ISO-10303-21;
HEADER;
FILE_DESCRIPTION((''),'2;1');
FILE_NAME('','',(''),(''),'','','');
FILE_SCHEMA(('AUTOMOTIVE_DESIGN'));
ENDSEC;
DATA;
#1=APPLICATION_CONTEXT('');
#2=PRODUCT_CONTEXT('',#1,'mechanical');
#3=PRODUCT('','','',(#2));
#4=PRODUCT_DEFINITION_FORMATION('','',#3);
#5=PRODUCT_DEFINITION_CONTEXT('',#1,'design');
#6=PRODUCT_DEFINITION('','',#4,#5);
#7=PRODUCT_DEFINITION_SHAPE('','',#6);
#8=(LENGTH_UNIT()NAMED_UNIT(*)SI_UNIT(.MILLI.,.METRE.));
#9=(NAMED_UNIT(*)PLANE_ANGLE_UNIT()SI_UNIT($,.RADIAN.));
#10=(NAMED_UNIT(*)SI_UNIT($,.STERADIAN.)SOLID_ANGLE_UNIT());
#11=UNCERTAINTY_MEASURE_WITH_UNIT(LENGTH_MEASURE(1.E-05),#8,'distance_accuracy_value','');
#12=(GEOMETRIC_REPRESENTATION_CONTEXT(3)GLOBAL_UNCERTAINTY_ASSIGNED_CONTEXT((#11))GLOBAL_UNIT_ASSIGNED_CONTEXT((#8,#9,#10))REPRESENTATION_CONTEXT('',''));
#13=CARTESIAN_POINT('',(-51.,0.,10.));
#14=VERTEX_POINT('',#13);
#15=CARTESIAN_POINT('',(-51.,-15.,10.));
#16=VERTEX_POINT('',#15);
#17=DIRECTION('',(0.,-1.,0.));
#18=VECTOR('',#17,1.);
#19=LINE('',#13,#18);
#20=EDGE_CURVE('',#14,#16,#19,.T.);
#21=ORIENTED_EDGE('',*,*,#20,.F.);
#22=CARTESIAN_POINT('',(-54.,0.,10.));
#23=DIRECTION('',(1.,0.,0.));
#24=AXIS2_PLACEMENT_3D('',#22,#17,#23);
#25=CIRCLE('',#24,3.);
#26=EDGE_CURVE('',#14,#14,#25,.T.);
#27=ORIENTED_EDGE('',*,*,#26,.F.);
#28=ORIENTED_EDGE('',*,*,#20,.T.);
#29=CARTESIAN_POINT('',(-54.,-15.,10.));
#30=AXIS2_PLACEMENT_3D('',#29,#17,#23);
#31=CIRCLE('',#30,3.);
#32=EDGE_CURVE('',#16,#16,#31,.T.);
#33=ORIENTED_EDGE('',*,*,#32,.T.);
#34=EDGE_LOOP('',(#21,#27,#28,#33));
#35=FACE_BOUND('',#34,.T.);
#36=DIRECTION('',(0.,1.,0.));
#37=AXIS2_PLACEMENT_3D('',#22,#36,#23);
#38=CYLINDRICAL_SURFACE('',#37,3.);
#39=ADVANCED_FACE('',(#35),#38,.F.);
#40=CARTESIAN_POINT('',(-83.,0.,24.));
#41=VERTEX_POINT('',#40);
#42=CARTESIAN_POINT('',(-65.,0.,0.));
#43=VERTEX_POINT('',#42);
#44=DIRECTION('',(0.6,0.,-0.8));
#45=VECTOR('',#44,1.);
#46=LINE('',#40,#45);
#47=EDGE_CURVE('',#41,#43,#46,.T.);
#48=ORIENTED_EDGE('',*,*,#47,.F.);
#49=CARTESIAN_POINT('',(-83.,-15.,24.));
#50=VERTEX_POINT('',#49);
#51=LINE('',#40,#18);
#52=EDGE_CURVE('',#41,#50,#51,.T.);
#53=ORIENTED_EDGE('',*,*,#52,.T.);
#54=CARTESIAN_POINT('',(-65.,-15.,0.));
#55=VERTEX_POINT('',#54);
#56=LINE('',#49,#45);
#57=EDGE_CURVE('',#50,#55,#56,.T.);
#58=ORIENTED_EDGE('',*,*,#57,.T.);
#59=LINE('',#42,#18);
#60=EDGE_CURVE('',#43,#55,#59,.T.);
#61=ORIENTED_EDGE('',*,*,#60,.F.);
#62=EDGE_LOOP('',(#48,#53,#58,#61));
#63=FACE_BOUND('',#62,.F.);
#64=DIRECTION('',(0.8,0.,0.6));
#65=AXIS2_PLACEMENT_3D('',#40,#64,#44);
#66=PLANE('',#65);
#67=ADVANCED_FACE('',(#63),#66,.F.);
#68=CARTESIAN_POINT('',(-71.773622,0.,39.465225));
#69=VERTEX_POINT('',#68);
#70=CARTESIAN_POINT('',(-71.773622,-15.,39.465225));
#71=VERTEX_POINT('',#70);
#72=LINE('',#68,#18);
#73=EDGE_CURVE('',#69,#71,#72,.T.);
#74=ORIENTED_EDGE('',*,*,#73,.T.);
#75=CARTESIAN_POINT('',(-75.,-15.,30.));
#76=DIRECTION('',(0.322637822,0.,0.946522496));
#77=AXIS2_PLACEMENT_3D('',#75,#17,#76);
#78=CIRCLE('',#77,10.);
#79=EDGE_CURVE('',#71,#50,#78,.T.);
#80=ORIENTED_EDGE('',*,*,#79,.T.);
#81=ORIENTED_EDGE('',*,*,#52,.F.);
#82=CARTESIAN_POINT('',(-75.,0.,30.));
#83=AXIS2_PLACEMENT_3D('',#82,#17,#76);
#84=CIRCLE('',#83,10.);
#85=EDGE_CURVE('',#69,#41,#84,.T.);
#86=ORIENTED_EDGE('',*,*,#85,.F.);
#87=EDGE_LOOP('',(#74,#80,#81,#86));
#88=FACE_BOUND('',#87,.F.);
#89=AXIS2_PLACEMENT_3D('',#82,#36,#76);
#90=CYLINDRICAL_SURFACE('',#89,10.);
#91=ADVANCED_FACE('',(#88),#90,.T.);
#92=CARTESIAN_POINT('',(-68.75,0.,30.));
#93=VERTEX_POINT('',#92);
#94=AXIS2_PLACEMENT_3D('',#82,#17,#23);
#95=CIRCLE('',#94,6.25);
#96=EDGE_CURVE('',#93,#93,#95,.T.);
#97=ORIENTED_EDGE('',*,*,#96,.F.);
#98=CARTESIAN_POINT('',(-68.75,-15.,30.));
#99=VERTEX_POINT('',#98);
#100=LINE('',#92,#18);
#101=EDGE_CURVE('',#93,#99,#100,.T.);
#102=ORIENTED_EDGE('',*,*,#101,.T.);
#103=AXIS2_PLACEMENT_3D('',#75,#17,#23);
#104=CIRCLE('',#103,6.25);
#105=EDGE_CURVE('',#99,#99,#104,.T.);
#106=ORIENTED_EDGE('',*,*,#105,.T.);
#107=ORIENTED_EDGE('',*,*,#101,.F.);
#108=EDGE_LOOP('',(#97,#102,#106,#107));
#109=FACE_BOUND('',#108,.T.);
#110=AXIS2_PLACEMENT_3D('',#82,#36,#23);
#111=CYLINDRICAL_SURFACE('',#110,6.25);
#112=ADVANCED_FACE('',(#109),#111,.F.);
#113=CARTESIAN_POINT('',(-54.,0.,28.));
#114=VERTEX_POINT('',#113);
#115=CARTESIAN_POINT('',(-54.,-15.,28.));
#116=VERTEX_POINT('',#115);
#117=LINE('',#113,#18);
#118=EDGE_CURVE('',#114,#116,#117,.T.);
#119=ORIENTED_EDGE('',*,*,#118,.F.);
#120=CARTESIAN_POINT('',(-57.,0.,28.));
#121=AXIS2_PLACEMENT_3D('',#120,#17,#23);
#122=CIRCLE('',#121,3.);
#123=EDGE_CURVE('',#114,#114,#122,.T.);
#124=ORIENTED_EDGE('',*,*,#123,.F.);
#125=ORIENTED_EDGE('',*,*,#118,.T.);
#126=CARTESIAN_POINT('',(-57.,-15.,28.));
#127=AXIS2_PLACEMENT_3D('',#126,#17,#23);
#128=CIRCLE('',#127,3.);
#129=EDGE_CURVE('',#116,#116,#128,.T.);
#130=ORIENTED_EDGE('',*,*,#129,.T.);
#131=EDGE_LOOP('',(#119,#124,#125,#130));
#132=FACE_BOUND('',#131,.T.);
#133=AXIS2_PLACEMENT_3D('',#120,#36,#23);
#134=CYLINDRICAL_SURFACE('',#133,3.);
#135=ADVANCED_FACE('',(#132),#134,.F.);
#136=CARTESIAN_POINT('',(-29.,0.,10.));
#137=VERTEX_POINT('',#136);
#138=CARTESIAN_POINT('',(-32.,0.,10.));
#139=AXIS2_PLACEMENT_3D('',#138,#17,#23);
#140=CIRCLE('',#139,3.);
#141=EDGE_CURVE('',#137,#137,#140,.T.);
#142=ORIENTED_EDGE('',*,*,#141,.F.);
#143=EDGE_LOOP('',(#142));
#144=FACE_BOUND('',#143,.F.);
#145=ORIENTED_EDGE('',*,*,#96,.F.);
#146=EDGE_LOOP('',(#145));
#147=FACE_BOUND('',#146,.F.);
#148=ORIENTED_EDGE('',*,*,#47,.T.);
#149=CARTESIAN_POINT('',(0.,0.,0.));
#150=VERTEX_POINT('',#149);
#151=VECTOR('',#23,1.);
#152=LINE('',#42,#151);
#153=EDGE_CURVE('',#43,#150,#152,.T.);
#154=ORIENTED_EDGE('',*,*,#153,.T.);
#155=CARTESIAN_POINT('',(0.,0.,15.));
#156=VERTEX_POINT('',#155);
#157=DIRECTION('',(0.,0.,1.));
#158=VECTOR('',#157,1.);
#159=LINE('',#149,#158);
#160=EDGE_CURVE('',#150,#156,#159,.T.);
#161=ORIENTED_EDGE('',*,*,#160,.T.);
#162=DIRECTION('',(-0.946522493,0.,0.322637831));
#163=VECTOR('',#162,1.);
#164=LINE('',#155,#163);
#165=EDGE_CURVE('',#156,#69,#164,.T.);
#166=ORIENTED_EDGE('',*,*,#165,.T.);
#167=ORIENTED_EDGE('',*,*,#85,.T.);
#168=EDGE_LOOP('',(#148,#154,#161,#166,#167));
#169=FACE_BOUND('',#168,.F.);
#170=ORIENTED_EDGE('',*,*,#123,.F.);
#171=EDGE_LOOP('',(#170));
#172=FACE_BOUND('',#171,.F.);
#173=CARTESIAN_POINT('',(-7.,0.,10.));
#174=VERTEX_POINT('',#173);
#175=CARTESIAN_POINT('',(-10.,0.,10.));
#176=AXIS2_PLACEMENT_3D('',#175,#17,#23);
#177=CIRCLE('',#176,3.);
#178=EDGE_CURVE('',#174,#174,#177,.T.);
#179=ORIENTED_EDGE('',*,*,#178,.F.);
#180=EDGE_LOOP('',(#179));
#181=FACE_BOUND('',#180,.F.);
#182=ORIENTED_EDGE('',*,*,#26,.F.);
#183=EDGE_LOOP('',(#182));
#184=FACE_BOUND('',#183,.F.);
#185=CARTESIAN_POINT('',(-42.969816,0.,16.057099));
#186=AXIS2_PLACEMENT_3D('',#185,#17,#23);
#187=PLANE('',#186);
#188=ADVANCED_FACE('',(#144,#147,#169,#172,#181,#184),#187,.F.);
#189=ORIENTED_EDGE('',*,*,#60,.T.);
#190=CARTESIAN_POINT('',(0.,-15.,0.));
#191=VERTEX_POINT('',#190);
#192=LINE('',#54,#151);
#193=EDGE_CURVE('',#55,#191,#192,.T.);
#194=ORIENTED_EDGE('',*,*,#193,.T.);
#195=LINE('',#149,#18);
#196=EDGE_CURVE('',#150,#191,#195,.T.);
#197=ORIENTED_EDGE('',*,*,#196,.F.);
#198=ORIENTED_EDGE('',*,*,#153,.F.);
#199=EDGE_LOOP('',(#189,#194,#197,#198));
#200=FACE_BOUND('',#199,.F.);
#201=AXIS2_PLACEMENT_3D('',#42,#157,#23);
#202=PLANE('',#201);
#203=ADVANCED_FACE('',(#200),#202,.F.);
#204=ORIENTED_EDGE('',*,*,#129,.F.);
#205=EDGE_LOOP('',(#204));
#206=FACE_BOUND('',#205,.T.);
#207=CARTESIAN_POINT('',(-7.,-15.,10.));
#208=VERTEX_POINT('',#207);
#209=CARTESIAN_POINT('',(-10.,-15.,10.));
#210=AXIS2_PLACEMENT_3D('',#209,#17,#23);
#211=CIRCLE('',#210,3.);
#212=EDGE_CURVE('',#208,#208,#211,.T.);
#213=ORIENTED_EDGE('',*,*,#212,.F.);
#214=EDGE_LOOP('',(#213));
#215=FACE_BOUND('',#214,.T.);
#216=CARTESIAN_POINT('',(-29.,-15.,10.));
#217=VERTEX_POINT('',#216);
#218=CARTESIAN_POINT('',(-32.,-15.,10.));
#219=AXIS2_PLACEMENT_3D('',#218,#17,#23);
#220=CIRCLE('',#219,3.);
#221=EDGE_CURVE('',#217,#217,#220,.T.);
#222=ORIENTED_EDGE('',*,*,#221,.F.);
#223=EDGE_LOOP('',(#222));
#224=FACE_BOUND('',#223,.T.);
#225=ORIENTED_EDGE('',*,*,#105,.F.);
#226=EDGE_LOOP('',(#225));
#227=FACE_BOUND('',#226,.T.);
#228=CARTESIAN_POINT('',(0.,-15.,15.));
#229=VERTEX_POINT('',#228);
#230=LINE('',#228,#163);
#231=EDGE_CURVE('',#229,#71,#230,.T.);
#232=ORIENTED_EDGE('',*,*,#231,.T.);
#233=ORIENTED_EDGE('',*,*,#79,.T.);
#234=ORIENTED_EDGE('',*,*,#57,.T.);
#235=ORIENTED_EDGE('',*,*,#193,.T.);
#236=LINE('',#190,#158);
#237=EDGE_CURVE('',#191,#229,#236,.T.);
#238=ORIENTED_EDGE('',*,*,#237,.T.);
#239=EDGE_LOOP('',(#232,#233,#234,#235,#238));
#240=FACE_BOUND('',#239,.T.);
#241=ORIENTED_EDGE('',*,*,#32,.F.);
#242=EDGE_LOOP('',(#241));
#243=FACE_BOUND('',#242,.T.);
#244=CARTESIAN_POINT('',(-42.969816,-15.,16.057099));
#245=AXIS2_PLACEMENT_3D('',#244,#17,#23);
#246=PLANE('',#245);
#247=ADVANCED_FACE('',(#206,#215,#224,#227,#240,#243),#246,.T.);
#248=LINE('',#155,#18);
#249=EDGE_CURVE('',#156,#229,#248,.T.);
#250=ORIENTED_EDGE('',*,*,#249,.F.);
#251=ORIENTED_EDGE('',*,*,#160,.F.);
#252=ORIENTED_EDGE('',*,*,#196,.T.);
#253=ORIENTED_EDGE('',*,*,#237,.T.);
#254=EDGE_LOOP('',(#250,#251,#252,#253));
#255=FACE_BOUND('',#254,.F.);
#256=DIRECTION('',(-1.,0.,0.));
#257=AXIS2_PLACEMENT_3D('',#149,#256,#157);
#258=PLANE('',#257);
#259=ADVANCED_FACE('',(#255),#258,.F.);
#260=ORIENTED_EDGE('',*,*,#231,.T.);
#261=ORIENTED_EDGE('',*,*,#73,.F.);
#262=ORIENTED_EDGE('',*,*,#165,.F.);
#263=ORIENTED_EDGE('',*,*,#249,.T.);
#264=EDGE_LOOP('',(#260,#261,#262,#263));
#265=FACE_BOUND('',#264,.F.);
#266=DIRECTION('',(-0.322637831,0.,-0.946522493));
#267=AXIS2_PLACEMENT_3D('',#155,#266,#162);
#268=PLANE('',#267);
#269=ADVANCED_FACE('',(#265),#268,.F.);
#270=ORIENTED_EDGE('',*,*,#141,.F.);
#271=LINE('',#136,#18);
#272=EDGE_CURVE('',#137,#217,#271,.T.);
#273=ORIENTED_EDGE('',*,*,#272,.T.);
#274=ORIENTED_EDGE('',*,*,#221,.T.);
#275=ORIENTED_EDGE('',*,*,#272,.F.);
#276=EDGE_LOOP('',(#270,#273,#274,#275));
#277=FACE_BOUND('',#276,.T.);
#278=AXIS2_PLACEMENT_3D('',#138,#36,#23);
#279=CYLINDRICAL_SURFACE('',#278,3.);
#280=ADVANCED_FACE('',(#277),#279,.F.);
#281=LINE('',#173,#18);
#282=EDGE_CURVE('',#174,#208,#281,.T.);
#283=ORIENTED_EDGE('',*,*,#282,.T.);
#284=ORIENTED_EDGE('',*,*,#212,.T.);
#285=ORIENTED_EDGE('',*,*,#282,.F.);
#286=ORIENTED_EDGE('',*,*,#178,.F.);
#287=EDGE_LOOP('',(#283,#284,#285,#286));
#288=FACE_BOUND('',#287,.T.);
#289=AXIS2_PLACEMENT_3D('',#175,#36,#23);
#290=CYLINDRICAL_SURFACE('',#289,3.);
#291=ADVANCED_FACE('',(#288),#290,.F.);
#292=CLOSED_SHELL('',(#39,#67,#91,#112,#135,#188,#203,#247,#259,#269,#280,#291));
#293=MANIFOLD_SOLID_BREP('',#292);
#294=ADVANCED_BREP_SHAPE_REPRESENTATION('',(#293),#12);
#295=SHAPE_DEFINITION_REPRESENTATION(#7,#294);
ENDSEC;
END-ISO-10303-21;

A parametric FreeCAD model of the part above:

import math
import FreeCAD as App
import Part
import Sketcher
from FreeCAD import Vector

doc = App.newDocument("Part")
body = doc.addObject("PartDesign::Body", "Body")

# Sketch on XZ plane
sketch1 = body.newObject("Sketcher::SketchObject", "Sketch")
sketch1.AttachmentSupport = (doc.getObject("XZ_Plane"), [""])
sketch1.MapMode = "FlatFace"
sketch1.addGeometry(Part.LineSegment(Vector(-65, 0, 0), Vector(0, 0, 0)), False)
sketch1.addGeometry(Part.LineSegment(Vector(0, 0, 0), Vector(0, 15, 0)), False)
sketch1.addGeometry(Part.LineSegment(Vector(0, 15, 0), Vector(-71.8, 39.5, 0)), False)
sketch1.addGeometry(Part.ArcOfCircle(Part.Circle(Vector(-75, 30, 0), Vector(0, 0, 1), 10), math.radians(71), math.radians(217)), False)
sketch1.addGeometry(Part.LineSegment(Vector(-83, 24, 0), Vector(-65, 0, 0)), False)
sketch1.addGeometry(Part.Circle(Vector(-54, 10, 0), Vector(0, 0, 1), 3), False)
sketch1.addGeometry(Part.Circle(Vector(-32, 10, 0), Vector(0, 0, 1), 3), False)
sketch1.addGeometry(Part.Circle(Vector(-10, 10, 0), Vector(0, 0, 1), 3), False)
sketch1.addGeometry(Part.Circle(Vector(-57, 28, 0), Vector(0, 0, 1), 3), False)
sketch1.addGeometry(Part.Circle(Vector(-75, 30, 0), Vector(0, 0, 1), 6.2), False)
sketch1.addConstraint(Sketcher.Constraint("Coincident", 0, 2, 1, 1))
sketch1.addConstraint(Sketcher.Constraint("Coincident", 1, 2, 2, 1))
sketch1.addConstraint(Sketcher.Constraint("Tangent", 2, 2, 3, 1))
sketch1.addConstraint(Sketcher.Constraint("Tangent", 3, 2, 4, 1))
sketch1.addConstraint(Sketcher.Constraint("Coincident", 4, 2, 0, 1))
sketch1.addConstraint(Sketcher.Constraint("Horizontal", 0))
sketch1.addConstraint(Sketcher.Constraint("Vertical", 1))
sketch1.addConstraint(Sketcher.Constraint("Coincident", 0, 2, -1, 1))
sketch1.addConstraint(Sketcher.Constraint("Coincident", 9, 3, 3, 3))
sketch1.addConstraint(Sketcher.Constraint("Equal", 5, 6))
sketch1.addConstraint(Sketcher.Constraint("Equal", 6, 7))
sketch1.addConstraint(Sketcher.Constraint("Equal", 7, 8))
sketch1.addConstraint(Sketcher.Constraint("Horizontal", 5, 3, 6, 3))
sketch1.addConstraint(Sketcher.Constraint("Horizontal", 6, 3, 7, 3))
sketch1.addConstraint(Sketcher.Constraint("Diameter", 5, 6.0))
sketch1.addConstraint(Sketcher.Constraint("Radius", 3, 10.0))
sketch1.addConstraint(Sketcher.Constraint("Diameter", 9, 12.5))
sketch1.addConstraint(Sketcher.Constraint("DistanceX", 0, 1, 0, 2, 65.0))
sketch1.addConstraint(Sketcher.Constraint("DistanceY", 1, 1, 1, 2, 15.0))
sketch1.addConstraint(Sketcher.Constraint("Distance", 4, 30.0))
sketch1.addConstraint(Sketcher.Constraint("DistanceX", 3, 3, -1, 1, 75.0))
sketch1.addConstraint(Sketcher.Constraint("DistanceX", 5, 3, -1, 1, 54.0))
sketch1.addConstraint(Sketcher.Constraint("DistanceY", -1, 1, 5, 3, 10.0))
sketch1.addConstraint(Sketcher.Constraint("DistanceX", 6, 3, -1, 1, 32.0))
sketch1.addConstraint(Sketcher.Constraint("DistanceX", 7, 3, -1, 1, 10.0))
sketch1.addConstraint(Sketcher.Constraint("DistanceX", 8, 3, -1, 1, 57.0))
sketch1.addConstraint(Sketcher.Constraint("DistanceY", -1, 1, 8, 3, 28.0))
pad1 = body.newObject("PartDesign::Pad", "Pad")
pad1.Profile = sketch1
pad1.Length = 15

doc.recompute()
